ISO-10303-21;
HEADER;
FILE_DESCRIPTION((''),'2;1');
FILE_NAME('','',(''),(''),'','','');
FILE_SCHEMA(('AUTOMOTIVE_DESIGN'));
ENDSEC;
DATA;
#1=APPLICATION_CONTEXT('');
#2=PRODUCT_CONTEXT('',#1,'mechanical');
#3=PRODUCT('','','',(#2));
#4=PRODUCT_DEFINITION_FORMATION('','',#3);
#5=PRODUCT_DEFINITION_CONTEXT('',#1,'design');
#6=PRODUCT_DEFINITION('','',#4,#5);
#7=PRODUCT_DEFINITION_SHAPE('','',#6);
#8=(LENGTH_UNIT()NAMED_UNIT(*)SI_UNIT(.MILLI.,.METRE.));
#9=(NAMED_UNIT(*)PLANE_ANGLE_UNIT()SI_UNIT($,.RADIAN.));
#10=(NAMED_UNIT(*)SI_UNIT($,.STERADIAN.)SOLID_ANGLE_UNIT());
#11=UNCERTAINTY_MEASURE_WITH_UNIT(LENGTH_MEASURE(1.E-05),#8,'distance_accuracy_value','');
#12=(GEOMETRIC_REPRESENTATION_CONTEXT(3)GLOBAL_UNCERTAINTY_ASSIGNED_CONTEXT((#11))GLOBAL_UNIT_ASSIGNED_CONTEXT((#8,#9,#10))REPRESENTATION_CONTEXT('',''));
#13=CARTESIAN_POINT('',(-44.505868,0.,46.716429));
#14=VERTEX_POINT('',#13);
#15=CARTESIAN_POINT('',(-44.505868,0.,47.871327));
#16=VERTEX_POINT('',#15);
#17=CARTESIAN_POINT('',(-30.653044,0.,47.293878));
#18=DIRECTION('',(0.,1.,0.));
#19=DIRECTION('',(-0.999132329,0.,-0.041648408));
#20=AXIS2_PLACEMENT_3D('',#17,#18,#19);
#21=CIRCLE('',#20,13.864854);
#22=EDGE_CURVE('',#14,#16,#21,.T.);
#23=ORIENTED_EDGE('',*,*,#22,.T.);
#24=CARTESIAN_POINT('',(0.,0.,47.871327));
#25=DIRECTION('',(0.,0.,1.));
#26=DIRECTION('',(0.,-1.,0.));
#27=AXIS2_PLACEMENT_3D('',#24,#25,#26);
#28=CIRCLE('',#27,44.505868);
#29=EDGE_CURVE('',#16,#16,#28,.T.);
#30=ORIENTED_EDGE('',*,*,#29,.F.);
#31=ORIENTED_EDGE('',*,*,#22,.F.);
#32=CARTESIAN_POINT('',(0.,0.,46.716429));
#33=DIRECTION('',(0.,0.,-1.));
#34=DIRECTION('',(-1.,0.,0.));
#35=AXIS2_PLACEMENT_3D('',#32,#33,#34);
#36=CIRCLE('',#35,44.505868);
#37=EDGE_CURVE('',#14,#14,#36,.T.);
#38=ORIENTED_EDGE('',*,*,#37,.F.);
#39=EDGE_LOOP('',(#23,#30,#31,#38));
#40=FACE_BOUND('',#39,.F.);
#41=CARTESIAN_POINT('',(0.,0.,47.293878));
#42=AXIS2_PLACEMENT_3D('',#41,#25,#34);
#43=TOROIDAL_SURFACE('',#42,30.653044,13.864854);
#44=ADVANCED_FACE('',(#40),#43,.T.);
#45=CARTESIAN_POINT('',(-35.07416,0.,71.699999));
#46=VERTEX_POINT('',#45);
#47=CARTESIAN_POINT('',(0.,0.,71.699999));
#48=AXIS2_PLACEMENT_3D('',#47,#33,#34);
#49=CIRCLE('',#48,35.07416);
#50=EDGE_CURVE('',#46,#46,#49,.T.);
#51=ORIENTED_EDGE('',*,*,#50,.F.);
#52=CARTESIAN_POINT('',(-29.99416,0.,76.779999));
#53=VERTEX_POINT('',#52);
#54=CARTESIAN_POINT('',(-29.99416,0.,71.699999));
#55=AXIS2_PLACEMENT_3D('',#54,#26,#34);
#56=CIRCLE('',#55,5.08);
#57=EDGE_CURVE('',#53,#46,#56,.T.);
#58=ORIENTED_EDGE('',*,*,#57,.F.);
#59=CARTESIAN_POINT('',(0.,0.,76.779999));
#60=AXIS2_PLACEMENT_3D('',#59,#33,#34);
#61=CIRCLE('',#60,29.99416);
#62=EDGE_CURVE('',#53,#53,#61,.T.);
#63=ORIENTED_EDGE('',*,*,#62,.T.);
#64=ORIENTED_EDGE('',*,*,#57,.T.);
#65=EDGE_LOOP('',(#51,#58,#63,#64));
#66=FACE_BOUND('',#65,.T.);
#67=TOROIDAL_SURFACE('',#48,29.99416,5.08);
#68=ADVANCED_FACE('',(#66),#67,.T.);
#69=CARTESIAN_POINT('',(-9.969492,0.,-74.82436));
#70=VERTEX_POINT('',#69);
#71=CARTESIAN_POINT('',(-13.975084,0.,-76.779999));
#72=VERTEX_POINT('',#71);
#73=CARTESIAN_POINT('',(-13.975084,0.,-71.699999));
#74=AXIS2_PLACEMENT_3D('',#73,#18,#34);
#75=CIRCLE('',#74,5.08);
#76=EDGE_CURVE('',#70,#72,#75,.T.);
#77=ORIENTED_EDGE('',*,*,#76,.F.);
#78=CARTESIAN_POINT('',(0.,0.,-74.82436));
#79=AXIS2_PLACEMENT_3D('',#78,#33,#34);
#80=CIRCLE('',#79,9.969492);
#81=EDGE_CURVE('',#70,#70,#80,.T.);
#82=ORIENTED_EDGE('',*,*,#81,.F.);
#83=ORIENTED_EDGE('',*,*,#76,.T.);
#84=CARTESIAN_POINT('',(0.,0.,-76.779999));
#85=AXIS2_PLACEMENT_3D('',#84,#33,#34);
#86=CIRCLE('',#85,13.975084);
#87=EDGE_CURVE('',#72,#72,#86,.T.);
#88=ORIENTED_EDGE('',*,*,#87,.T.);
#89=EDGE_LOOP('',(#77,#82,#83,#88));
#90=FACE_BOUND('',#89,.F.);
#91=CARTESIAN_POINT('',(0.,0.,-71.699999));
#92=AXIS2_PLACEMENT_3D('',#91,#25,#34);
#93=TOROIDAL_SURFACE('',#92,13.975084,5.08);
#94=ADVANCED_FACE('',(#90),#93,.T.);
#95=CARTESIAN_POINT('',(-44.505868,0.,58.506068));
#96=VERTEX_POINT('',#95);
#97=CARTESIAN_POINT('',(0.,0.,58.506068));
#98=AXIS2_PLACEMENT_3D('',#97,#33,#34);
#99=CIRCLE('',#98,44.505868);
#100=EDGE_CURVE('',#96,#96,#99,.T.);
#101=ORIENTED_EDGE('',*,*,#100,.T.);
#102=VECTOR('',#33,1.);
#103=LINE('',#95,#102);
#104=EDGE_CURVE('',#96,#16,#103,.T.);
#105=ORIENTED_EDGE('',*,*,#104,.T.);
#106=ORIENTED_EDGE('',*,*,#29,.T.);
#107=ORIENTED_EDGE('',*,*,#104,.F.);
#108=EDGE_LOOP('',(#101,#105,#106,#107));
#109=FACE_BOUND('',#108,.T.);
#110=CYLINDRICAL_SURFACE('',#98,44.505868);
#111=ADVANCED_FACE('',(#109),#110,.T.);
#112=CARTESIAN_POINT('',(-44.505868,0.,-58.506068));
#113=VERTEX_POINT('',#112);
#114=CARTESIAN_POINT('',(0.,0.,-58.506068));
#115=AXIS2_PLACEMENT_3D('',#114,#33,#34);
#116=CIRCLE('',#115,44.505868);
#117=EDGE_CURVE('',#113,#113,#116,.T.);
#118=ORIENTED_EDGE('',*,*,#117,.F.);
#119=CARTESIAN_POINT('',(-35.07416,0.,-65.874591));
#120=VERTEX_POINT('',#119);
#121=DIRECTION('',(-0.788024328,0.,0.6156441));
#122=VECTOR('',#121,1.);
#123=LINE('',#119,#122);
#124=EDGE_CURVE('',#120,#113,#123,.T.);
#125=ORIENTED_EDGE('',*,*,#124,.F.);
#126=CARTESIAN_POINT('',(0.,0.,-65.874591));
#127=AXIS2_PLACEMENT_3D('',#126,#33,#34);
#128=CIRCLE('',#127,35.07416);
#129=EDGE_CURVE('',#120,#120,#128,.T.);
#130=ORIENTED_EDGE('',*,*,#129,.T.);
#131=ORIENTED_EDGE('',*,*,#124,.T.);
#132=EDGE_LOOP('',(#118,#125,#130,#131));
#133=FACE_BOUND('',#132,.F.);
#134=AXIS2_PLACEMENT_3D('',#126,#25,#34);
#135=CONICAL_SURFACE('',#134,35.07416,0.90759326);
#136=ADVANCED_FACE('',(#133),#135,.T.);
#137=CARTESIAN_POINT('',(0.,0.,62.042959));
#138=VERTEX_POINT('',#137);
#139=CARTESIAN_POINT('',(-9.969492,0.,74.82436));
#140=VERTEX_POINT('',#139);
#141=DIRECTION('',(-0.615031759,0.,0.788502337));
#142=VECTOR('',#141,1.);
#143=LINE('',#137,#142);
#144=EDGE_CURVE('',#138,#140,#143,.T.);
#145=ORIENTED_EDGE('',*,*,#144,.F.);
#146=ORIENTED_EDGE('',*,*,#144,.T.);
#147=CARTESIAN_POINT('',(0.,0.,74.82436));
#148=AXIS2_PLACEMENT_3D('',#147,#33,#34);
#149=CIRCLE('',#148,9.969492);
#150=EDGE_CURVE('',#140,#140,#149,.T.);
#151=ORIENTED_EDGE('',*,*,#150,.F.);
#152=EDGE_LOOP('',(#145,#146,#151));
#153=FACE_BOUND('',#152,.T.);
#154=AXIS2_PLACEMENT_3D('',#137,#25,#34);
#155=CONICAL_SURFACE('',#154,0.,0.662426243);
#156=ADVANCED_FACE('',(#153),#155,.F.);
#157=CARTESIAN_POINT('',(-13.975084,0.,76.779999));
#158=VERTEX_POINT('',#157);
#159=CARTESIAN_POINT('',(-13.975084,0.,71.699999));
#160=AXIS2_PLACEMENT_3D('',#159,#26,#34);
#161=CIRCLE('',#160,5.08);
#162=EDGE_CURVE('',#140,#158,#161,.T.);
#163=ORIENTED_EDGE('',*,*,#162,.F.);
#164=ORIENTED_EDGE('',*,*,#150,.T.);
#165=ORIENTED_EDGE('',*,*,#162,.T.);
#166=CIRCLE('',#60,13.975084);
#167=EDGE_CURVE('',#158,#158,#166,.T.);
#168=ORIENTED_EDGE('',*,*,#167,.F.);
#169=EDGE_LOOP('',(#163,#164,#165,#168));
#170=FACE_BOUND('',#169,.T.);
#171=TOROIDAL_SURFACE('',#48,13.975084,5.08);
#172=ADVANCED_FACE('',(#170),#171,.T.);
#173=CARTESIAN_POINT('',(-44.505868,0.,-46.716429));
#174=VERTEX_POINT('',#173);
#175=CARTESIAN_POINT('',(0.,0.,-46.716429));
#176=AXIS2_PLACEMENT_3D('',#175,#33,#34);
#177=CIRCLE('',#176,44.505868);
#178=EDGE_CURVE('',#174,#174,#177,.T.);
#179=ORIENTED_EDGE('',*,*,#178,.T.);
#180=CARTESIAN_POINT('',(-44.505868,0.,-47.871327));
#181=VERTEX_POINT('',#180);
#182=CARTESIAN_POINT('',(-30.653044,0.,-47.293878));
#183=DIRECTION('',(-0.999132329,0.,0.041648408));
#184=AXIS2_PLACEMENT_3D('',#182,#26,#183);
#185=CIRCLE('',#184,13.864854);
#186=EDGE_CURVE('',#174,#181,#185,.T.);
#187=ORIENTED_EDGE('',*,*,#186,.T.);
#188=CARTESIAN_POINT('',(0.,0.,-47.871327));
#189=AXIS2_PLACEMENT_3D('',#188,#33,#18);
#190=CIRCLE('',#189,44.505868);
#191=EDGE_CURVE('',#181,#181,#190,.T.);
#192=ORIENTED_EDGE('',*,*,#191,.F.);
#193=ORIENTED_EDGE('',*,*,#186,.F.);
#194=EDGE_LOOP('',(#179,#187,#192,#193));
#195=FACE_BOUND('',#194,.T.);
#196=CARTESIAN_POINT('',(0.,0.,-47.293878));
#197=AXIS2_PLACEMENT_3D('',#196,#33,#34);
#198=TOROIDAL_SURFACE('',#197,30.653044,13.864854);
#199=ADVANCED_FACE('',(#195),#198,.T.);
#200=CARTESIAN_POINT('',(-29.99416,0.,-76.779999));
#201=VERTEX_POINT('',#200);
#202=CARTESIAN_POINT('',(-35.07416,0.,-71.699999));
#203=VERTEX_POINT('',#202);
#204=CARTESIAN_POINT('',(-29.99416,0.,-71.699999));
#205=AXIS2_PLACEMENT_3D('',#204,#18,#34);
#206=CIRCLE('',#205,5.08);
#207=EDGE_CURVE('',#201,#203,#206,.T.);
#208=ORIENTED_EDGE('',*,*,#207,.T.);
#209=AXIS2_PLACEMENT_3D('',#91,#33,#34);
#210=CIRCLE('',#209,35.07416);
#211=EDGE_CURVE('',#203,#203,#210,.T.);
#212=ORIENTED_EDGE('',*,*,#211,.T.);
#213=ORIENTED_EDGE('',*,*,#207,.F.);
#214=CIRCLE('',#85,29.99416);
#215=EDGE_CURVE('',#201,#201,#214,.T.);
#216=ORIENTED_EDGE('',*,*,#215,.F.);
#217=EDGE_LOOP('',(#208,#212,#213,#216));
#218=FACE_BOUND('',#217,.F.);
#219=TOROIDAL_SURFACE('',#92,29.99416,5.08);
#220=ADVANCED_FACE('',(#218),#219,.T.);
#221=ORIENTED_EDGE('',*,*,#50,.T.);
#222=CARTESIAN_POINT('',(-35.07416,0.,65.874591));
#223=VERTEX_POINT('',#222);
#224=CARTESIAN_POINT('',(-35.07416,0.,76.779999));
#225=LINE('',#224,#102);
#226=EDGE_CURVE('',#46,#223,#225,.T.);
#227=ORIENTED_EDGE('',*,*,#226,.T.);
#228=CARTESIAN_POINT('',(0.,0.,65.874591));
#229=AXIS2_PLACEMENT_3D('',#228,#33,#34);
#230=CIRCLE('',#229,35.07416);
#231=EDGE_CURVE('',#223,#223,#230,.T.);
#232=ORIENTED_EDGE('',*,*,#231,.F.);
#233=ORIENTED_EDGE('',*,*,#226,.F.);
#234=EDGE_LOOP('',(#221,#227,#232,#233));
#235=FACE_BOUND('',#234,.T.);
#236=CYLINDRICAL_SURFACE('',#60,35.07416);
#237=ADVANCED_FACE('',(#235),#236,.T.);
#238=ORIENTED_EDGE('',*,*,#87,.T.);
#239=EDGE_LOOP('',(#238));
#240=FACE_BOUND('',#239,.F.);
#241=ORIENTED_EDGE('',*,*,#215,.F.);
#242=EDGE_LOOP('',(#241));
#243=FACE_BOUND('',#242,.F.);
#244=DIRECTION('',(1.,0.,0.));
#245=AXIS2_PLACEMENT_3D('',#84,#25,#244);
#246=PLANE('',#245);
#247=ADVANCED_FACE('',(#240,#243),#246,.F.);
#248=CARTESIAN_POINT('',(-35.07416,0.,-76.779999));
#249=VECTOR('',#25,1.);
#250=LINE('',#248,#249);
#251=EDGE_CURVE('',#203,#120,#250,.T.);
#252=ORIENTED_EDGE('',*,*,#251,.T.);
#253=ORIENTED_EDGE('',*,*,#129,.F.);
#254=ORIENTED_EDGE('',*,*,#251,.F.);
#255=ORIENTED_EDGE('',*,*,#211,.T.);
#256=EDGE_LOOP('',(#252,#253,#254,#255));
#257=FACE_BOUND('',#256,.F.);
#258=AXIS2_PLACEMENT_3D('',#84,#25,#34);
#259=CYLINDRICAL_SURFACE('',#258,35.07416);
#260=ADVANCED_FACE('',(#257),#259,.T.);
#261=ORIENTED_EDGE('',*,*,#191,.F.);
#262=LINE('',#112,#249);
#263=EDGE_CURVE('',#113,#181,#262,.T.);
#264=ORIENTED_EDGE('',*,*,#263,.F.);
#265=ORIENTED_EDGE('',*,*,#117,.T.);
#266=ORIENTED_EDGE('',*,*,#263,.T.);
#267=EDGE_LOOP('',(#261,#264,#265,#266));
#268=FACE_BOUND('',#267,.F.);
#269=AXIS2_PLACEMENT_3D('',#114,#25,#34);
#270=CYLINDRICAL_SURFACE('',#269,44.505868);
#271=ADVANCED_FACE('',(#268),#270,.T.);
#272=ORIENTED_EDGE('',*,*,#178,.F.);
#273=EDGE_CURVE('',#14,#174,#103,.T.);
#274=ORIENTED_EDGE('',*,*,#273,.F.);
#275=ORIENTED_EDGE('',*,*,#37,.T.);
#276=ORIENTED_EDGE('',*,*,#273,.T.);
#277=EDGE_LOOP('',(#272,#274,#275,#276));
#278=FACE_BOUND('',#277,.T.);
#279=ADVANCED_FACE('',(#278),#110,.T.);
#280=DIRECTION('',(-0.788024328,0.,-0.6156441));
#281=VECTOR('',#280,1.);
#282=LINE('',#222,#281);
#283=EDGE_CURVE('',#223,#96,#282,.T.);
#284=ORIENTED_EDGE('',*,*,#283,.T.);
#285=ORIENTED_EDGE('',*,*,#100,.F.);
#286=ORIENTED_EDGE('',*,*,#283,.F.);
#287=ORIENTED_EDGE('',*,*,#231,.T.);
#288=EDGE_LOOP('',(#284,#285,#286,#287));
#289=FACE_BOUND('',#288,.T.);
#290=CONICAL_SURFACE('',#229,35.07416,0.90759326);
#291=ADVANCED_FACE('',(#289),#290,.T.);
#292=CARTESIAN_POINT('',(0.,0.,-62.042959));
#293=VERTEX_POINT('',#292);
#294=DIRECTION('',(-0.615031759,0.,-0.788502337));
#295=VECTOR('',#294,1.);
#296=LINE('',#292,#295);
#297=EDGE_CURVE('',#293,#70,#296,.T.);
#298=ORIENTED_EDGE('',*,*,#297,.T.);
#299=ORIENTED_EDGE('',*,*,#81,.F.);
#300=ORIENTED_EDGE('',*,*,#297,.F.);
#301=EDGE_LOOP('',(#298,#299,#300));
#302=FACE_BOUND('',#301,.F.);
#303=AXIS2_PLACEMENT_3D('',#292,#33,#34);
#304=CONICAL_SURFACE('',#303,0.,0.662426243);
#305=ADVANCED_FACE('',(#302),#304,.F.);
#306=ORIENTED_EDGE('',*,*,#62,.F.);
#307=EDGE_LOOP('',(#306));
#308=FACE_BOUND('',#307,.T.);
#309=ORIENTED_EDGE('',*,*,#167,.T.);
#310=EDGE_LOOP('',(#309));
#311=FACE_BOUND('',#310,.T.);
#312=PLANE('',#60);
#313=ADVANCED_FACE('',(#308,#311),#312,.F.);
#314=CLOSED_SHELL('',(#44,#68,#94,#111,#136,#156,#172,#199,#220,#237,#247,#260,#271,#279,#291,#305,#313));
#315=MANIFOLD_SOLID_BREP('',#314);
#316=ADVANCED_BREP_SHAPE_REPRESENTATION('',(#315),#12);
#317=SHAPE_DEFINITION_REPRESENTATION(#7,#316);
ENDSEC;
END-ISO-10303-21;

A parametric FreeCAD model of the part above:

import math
import FreeCAD as App
import Part
import Sketcher

V = App.Vector
Q = App.Units.Quantity


def edges_at(feature, points):
    """Names of the edges that pass closest to the given points."""
    edges = feature.Shape.Edges
    near = lambda p: min(range(len(edges)), key=lambda i: edges[i].distToShape(Part.Vertex(*p))[0])
    return sorted({f"Edge{near(p) + 1}" for p in points})

doc = App.newDocument("Part")
body = doc.addObject("PartDesign::Body", "Body")

sketch1 = body.newObject("Sketcher::SketchObject", "Sketch")
sketch1.AttachmentSupport = (doc.getObject("XZ_Plane"), [""])
sketch1.MapMode = "FlatFace"
sketch1.addGeometry(Part.LineSegment(V(0, -61, 0), V(0, 62, 0)), False)
sketch1.addGeometry(Part.LineSegment(V(0, 62, 0), V(-11, 77, 0)), False)
sketch1.addGeometry(Part.LineSegment(V(-11, 77, 0), V(-35, 77, 0)), False)
sketch1.addGeometry(Part.LineSegment(V(-35, 77, 0), V(-35, 66, 0)), False)
sketch1.addGeometry(Part.LineSegment(V(-35, 66, 0), V(-45, 59, 0)), False)
sketch1.addGeometry(Part.LineSegment(V(-45, 59, 0), V(-45, -47, 0)), False)
sketch1.addGeometry(Part.ArcOfCircle(Part.Circle(V(-31, -47, 0), V(0, 0, 1), 14), math.radians(178), math.radians(270)), False)
sketch1.addGeometry(Part.LineSegment(V(-31, -61, 0), V(0, -61, 0)), False)
sketch1.addConstraint(Sketcher.Constraint("Coincident", 0, 2, 1, 1))
sketch1.addConstraint(Sketcher.Constraint("Coincident", 1, 2, 2, 1))
sketch1.addConstraint(Sketcher.Constraint("Coincident", 2, 2, 3, 1))
sketch1.addConstraint(Sketcher.Constraint("Coincident", 3, 2, 4, 1))
sketch1.addConstraint(Sketcher.Constraint("Coincident", 4, 2, 5, 1))
sketch1.addConstraint(Sketcher.Constraint("Coincident", 5, 2, 6, 1))
sketch1.addConstraint(Sketcher.Constraint("Tangent", 6, 2, 7, 1))
sketch1.addConstraint(Sketcher.Constraint("Coincident", 7, 2, 0, 1))
sketch1.addConstraint(Sketcher.Constraint("Vertical", 0))
sketch1.addConstraint(Sketcher.Constraint("Horizontal", 2))
sketch1.addConstraint(Sketcher.Constraint("Vertical", 3))
sketch1.addConstraint(Sketcher.Constraint("Vertical", 5))
sketch1.addConstraint(Sketcher.Constraint("Horizontal", 7))
sketch1.addConstraint(Sketcher.Constraint("PointOnObject", 0, 2, -2))
sketch1.addConstraint(Sketcher.Constraint("Radius", 6, Q("13.864854 mm")))
sketch1.addConstraint(Sketcher.Constraint("DistanceY", 6, 3, 0, 2, Q("4.3045999 in")))
sketch1.addConstraint(Sketcher.Constraint("DistanceX", 2, 2, 2, 1, Q("23.57927 mm")))
sketch1.addConstraint(Sketcher.Constraint("DistanceY", 3, 2, 3, 1, Q("10.905408 mm")))
sketch1.addConstraint(Sketcher.Constraint("DistanceY", -1, 1, 1, 2, Q("76.779999 mm")))
sketch1.addConstraint(Sketcher.Constraint("DistanceY", 6, 2, 4, 2, Q("119.6648 mm")))
sketch1.addConstraint(Sketcher.Constraint("DistanceX", 7, 1, 7, 2, Q("30.653045 mm")))
sketch1.addConstraint(Sketcher.Constraint("DistanceY", 5, 2, 5, 1, Q("105.222497 mm")))
sketch1.addConstraint(Sketcher.Constraint("DistanceY", 6, 3, -1, 1, Q("47.293878 mm")))
sketch1.addConstraint(Sketcher.Constraint("DistanceX", 1, 2, -1, 1, Q("11.49489 mm")))
revolution = body.newObject("PartDesign::Revolution", "Revolution")
revolution.Profile = sketch1
revolution.ReferenceAxis = (sketch1, ["V_Axis"])
revolution.Angle = 360
doc.recompute()

fillet = body.newObject("PartDesign::Fillet", "Fillet")
fillet.Base = (revolution, edges_at(revolution, [(11.495, 0, 76.78), (35.074, 0, 76.78)]))
fillet.Radius = Q("0.2 in")
body2 = doc.addObject("PartDesign::Body", "Body001")
doc.recompute()

body2.BaseFeature = body
doc.recompute()

mirroring = doc.addObject("Part::Mirroring", "Mirroring")
mirroring.Source = body
mirroring.Base = V(0, 0, 0)
mirroring.Normal = V(0, 0, 1)
body3 = doc.addObject("PartDesign::Body", "Body002")
body3.BaseFeature = mirroring
boolean = body2.newObject("PartDesign::Boolean", "Boolean")
boolean.Type = "Fuse"
boolean.addObjects([body3])
doc.recompute()
mirroring.Visibility = False

doc.recompute()
